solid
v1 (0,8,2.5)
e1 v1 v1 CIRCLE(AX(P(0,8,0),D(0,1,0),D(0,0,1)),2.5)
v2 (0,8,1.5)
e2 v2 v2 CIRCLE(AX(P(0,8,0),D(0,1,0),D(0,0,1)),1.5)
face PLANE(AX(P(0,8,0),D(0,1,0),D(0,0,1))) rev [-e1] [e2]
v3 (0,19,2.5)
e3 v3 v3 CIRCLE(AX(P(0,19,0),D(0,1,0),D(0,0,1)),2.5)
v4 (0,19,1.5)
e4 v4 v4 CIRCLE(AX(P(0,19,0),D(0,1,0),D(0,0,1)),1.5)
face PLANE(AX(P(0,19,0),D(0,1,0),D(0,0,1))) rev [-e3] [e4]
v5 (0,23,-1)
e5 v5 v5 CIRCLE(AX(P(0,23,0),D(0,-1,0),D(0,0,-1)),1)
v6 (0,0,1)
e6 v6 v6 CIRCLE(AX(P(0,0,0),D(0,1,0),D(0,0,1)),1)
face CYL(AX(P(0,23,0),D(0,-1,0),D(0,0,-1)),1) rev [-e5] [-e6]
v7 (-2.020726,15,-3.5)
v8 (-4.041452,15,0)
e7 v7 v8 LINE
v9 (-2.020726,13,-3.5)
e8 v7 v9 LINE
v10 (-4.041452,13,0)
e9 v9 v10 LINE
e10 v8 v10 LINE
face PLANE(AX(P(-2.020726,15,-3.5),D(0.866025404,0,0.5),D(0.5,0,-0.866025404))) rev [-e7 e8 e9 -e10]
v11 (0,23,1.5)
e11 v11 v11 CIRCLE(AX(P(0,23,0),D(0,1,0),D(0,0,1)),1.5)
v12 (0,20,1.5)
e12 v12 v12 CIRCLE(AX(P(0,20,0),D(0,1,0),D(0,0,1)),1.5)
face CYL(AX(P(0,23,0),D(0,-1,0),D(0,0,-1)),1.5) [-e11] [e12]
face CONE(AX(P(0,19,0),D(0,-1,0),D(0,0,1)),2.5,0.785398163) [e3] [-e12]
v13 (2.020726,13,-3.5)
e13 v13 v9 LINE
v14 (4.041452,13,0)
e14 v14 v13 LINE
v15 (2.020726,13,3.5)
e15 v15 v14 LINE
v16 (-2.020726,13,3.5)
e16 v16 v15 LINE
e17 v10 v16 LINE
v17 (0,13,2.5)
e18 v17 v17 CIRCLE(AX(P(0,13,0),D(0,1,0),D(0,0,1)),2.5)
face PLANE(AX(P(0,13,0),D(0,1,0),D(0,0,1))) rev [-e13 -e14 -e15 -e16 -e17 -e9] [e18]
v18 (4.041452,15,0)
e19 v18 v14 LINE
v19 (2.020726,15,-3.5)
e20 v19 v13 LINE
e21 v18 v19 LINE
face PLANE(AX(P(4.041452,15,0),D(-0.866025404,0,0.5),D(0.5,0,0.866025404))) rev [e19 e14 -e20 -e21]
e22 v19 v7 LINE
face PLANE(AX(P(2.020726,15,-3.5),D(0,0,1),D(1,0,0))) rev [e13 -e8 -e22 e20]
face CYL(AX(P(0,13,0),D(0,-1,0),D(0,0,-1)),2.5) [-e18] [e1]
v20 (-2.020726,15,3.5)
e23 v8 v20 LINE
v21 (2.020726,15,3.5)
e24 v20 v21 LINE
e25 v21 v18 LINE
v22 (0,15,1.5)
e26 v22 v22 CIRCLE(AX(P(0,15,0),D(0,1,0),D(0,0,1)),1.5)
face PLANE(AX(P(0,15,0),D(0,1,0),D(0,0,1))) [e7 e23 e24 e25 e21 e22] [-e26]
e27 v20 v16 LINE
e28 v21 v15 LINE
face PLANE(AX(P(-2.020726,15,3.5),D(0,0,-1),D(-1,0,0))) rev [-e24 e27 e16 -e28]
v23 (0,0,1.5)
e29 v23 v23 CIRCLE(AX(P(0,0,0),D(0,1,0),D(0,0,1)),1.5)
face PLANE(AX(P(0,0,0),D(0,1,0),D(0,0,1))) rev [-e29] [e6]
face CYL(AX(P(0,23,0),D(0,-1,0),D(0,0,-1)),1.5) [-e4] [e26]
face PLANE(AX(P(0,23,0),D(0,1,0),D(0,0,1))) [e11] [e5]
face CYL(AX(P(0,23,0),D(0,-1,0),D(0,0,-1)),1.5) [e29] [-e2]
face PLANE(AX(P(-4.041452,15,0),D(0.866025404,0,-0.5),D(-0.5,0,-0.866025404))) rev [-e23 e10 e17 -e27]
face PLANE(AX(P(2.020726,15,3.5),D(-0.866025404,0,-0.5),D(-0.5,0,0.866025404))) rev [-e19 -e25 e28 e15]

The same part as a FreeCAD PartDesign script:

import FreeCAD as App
import Part
import Sketcher
Q = App.Units.Quantity

doc = App.newDocument("Part")
body = doc.addObject("PartDesign::Body", "Body")

sketch1 = body.newObject("Sketcher::SketchObject", "Sketch")
sketch1.AttachmentSupport = (doc.getObject("XZ_Plane"), [""])
sketch1.MapMode = "FlatFace"
sketch1.addGeometry(Part.Circle(App.Vector(0, 0, 0), App.Vector(0, 0, 1), 1.5), False)
sketch1.addConstraint(Sketcher.Constraint("Coincident", 0, 3, -1, 1))
sketch1.addConstraint(Sketcher.Constraint("Diameter", 0, Q("3 mm")))
pad1 = body.newObject("PartDesign::Pad", "Pad")
pad1.Profile = sketch1
pad1.Length = 23
pad1.Reversed = True

sketch2 = body.newObject("Sketcher::SketchObject", "Sketch001")
sketch2.AttachmentSupport = (doc.getObject("XZ_Plane"), [""])
sketch2.MapMode = "FlatFace"
sketch2.AttachmentOffset = App.Placement(App.Vector(0, 0, -8), App.Rotation())
sketch2.addGeometry(Part.Circle(App.Vector(0, 0, 0), App.Vector(0, 0, 1), 2.5), False)
sketch2.addConstraint(Sketcher.Constraint("Coincident", 0, 3, -1, 1))
sketch2.addConstraint(Sketcher.Constraint("Diameter", 0, Q("5 mm")))
pad2 = body.newObject("PartDesign::Pad", "Pad001")
pad2.Profile = sketch2
pad2.Length = 5
pad2.Reversed = True

sketch3 = body.newObject("Sketcher::SketchObject", "Sketch002")
sketch3.AttachmentSupport = (doc.getObject("XZ_Plane"), [""])
sketch3.MapMode = "FlatFace"
sketch3.AttachmentOffset = App.Placement(App.Vector(0, 0, -13), App.Rotation())
sketch3.addGeometry(Part.LineSegment(App.Vector(-2, -3.5, 0), App.Vector(-4, 0, 0)), False)
sketch3.addGeometry(Part.LineSegment(App.Vector(-4, 0, 0), App.Vector(-2, 3.5, 0)), False)
sketch3.addGeometry(Part.LineSegment(App.Vector(-2, 3.5, 0), App.Vector(2, 3.5, 0)), False)
sketch3.addGeometry(Part.LineSegment(App.Vector(2, 3.5, 0), App.Vector(4, 0, 0)), False)
sketch3.addGeometry(Part.LineSegment(App.Vector(4, 0, 0), App.Vector(2, -3.5, 0)), False)
sketch3.addGeometry(Part.LineSegment(App.Vector(2, -3.5, 0), App.Vector(-2, -3.5, 0)), False)
sketch3.addConstraint(Sketcher.Constraint("Coincident", 0, 2, 1, 1))
sketch3.addConstraint(Sketcher.Constraint("Coincident", 1, 2, 2, 1))
sketch3.addConstraint(Sketcher.Constraint("Coincident", 2, 2, 3, 1))
sketch3.addConstraint(Sketcher.Constraint("Coincident", 3, 2, 4, 1))
sketch3.addConstraint(Sketcher.Constraint("Coincident", 4, 2, 5, 1))
sketch3.addConstraint(Sketcher.Constraint("Coincident", 5, 2, 0, 1))
sketch3.addConstraint(Sketcher.Constraint("Horizontal", 2))
sketch3.addConstraint(Sketcher.Constraint("Horizontal", 5))
sketch3.addConstraint(Sketcher.Constraint("Symmetric", 0, 2, 3, 2, -1, 1))
sketch3.addConstraint(Sketcher.Constraint("Symmetric", 1, 2, 4, 2, -1, 1))
sketch3.addConstraint(Sketcher.Constraint("PointOnObject", 0, 2, -1))
sketch3.addConstraint(Sketcher.Constraint("Parallel", 0, 3))
sketch3.addConstraint(Sketcher.Constraint("Vertical", 2, 2, 4, 2))
sketch3.addConstraint(Sketcher.Constraint("Angle", 0, Q("120 deg")))
sketch3.addConstraint(Sketcher.Constraint("DistanceY", 4, 2, 2, 2, Q("7 mm")))
sketch3.addConstraint(Sketcher.Constraint("DistanceX", 2, 1, 2, 2, Q("4.041452 mm")))
pad3 = body.newObject("PartDesign::Pad", "Pad002")
pad3.Profile = sketch3
pad3.Length = 2
pad3.Reversed = True

sketch4 = body.newObject("Sketcher::SketchObject", "Sketch003")
sketch4.AttachmentSupport = (doc.getObject("XZ_Plane"), [""])
sketch4.MapMode = "FlatFace"
sketch4.AttachmentOffset = App.Placement(App.Vector(0, 0, -19), App.Rotation())
sketch4.addGeometry(Part.Circle(App.Vector(0, 0, 0), App.Vector(0, 0, 1), 2.5), False)
sketch4.addConstraint(Sketcher.Constraint("Coincident", 0, 3, -1, 1))
sketch4.addConstraint(Sketcher.Constraint("Diameter", 0, Q("5 mm")))
pad4 = body.newObject("PartDesign::Pad", "Pad003")
pad4.Profile = sketch4
pad4.Length = 1
pad4.Reversed = True
pad4.TaperAngle = -45

sketch5 = body.newObject("Sketcher::SketchObject", "Sketch004")
sketch5.AttachmentSupport = (doc.getObject("XZ_Plane"), [""])
sketch5.MapMode = "FlatFace"
sketch5.addGeometry(Part.Circle(App.Vector(0, 0, 0), App.Vector(0, 0, 1), 1), False)
sketch5.addConstraint(Sketcher.Constraint("Coincident", 0, 3, -1, 1))
sketch5.addConstraint(Sketcher.Constraint("Diameter", 0, Q("2 mm")))
pocket1 = body.newObject("PartDesign::Pocket", "Pocket")
pocket1.Profile = sketch5
pocket1.Type = "ThroughAll"
pocket1.Midplane = True

doc.recompute()
